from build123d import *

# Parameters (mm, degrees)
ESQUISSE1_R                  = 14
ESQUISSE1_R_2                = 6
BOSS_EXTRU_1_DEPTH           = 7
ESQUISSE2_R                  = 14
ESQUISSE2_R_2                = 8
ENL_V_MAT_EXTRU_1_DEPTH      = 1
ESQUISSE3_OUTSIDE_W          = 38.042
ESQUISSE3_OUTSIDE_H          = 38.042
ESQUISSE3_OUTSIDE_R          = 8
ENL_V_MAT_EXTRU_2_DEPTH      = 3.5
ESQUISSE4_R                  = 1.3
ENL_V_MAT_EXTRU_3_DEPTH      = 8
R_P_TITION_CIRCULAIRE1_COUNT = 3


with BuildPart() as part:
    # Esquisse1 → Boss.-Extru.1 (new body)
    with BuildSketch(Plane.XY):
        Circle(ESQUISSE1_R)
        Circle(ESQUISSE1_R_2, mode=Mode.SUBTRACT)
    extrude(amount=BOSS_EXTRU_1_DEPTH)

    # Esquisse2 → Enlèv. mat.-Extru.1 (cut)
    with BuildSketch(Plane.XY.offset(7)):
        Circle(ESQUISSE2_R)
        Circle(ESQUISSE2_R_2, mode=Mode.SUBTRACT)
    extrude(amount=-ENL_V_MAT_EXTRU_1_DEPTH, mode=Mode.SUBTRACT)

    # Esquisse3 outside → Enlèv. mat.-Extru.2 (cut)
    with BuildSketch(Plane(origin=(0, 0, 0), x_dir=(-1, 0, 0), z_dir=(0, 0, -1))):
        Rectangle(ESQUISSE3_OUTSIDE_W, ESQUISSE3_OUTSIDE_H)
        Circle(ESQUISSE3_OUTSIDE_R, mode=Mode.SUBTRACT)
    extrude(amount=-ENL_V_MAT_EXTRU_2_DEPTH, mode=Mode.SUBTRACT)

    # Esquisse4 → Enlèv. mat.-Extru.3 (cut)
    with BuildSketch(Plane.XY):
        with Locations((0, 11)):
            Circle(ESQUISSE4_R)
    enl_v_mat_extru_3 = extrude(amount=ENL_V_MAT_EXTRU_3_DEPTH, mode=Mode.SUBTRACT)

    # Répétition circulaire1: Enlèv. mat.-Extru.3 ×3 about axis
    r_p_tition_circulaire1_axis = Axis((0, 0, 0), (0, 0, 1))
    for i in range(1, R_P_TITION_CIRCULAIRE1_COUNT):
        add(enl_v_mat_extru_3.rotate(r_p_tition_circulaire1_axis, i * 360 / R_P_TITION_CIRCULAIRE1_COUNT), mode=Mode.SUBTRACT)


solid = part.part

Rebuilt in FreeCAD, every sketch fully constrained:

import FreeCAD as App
import Part
import Sketcher

doc = App.newDocument("Part")
params = doc.addObject("Spreadsheet::Sheet", "Params")
for row, (alias, value) in enumerate([
    ("sketch1_diameter", "28 mm"),
    ("sketch1_diameter2", "12 mm"),
    ("pad1_length", "7 mm"),
    ("sketch2_diameter", "28 mm"),
    ("sketch2_diameter2", "16 mm"),
    ("pocket1_length", "1 mm"),
    ("sketch3_diameter", "16 mm"),
    ("pocket2_length", "3.5 mm"),
    ("sketch4_diameter", "2.6 mm"),
    ("pocket3_length", "8 mm"),
], start=1):
    params.set(f"A{row}", alias)
    params.set(f"B{row}", "=" + value)
    params.setAlias(f"B{row}", alias)

body = doc.addObject("PartDesign::Body", "Body")

sketch1 = body.newObject("Sketcher::SketchObject", "Sketch")
sketch1.AttachmentSupport = (doc.getObject("XY_Plane"), [""])
sketch1.MapMode = "FlatFace"
sketch1.addGeometry([
    Part.Circle(App.Vector(0, 0, 0), App.Vector(0, 0, 1), 14),
    Part.Circle(App.Vector(0, 0, 0), App.Vector(0, 0, 1), 6),
], False)
sketch1.addConstraint([
    Sketcher.Constraint("Coincident", 0, 3, -1, 1),
    Sketcher.Constraint("Coincident", 1, 3, -1, 1),
    Sketcher.Constraint("Diameter", 0, 28.0),
    Sketcher.Constraint("Diameter", 1, 12.0),
])
sketch1.setExpression("Constraints[2]", "Params.sketch1_diameter")
sketch1.setExpression("Constraints[3]", "Params.sketch1_diameter2")
pad1 = body.newObject("PartDesign::Pad", "Pad")
pad1.Profile = sketch1
pad1.setExpression("Length", "Params.pad1_length")

sketch2 = body.newObject("Sketcher::SketchObject", "Sketch001")
sketch2.AttachmentSupport = (doc.getObject("XY_Plane"), [""])
sketch2.MapMode = "FlatFace"
sketch2.AttachmentOffset = App.Placement(App.Vector(0, 0, 7), App.Rotation())
sketch2.addGeometry([
    Part.Circle(App.Vector(0, 0, 0), App.Vector(0, 0, 1), 14),
    Part.Circle(App.Vector(0, 0, 0), App.Vector(0, 0, 1), 8),
], False)
sketch2.addConstraint([
    Sketcher.Constraint("Coincident", 0, 3, -1, 1),
    Sketcher.Constraint("Coincident", 1, 3, -1, 1),
    Sketcher.Constraint("Diameter", 0, 28.0),
    Sketcher.Constraint("Diameter", 1, 16.0),
])
sketch2.setExpression("Constraints[2]", "Params.sketch2_diameter")
sketch2.setExpression("Constraints[3]", "Params.sketch2_diameter2")
pocket1 = body.newObject("PartDesign::Pocket", "Pocket")
pocket1.Profile = sketch2
pocket1.setExpression("Length", "Params.pocket1_length")

sketch3 = body.newObject("Sketcher::SketchObject", "Sketch002")
sketch3.AttachmentSupport = (doc.getObject("XY_Plane"), [""])
sketch3.MapMode = "FlatFace"
sketch3.addGeometry([
    Part.LineSegment(App.Vector(19.021, 19.021, 0), App.Vector(19.021, -19.021, 0)),
    Part.LineSegment(App.Vector(19.021, -19.021, 0), App.Vector(-19.021, -19.021, 0)),
    Part.LineSegment(App.Vector(-19.021, -19.021, 0), App.Vector(-19.021, 19.021, 0)),
    Part.LineSegment(App.Vector(-19.021, 19.021, 0), App.Vector(19.021, 19.021, 0)),
    Part.Circle(App.Vector(0, 0, 0), App.Vector(0, 0, 1), 8),
], False)
sketch3.addConstraint([
    Sketcher.Constraint("Coincident", 0, 2, 1, 1),
    Sketcher.Constraint("Coincident", 1, 2, 2, 1),
    Sketcher.Constraint("Coincident", 2, 2, 3, 1),
    Sketcher.Constraint("Coincident", 3, 2, 0, 1),
    Sketcher.Constraint("Vertical", 0),
    Sketcher.Constraint("Horizontal", 1),
    Sketcher.Constraint("Vertical", 2),
    Sketcher.Constraint("Horizontal", 3),
    Sketcher.Constraint("Coincident", 4, 3, -1, 1),
    Sketcher.Constraint("Symmetric", 0, 2, 2, 2, -1, 1),
    Sketcher.Constraint("Equal", 3, 0),
    Sketcher.Constraint("Diameter", 4, 16.0),
    Sketcher.Constraint("DistanceX", 1, 2, 1, 1, 38.042),
])
sketch3.setExpression("Constraints[11]", "Params.sketch3_diameter")
pocket2 = body.newObject("PartDesign::Pocket", "Pocket001")
pocket2.Profile = sketch3
pocket2.setExpression("Length", "Params.pocket2_length")
pocket2.Reversed = True

sketch4 = body.newObject("Sketcher::SketchObject", "Sketch003")
sketch4.AttachmentSupport = (doc.getObject("XY_Plane"), [""])
sketch4.MapMode = "FlatFace"
sketch4.addGeometry(Part.Circle(App.Vector(0, 11, 0), App.Vector(0, 0, 1), 1.3), False)
sketch4.addConstraint([
    Sketcher.Constraint("PointOnObject", 0, 3, -2),
    Sketcher.Constraint("Diameter", 0, 2.6),
    Sketcher.Constraint("DistanceY", -1, 1, 0, 3, 11.0),
])
sketch4.setExpression("Constraints[1]", "Params.sketch4_diameter")
pocket3 = body.newObject("PartDesign::Pocket", "Pocket002")
pocket3.Profile = sketch4
pocket3.setExpression("Length", "Params.pocket3_length")
pocket3.Reversed = True
doc.recompute()

polarpattern = body.newObject("PartDesign::PolarPattern", "PolarPattern")
polarpattern.Originals = [pocket3]
polarpattern.Axis = (doc.getObject("Z_Axis"), [""])
polarpattern.Angle = 360
polarpattern.Occurrences = 3
body.Tip = polarpattern

doc.recompute()
